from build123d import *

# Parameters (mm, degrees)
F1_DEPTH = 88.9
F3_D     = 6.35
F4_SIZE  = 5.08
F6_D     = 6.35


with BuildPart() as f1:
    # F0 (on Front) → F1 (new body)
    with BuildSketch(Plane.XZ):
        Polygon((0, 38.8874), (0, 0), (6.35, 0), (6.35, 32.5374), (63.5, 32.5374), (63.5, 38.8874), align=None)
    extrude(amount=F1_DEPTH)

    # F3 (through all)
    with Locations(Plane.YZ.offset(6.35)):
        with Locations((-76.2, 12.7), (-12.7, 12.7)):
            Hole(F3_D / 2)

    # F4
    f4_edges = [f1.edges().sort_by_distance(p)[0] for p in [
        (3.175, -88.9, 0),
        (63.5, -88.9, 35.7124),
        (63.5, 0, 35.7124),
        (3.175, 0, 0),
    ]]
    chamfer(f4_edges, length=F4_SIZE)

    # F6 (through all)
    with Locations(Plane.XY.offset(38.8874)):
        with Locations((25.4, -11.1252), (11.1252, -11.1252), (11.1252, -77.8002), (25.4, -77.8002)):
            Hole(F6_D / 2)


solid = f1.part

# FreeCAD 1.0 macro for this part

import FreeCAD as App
import Part
import Sketcher
Q = App.Units.Quantity


def edges_at(feature, points):
    """Names of the edges that pass closest to the given points."""
    edges = feature.Shape.Edges
    near = lambda p: min(range(len(edges)), key=lambda i: edges[i].distToShape(Part.Vertex(*p))[0])
    return sorted({f"Edge{near(p) + 1}" for p in points})


def add_polygon(sketch, points):
    """Adds a closed chain of lines whose ends are joined by coincident constraints."""
    first, n = sketch.GeometryCount, len(points)
    for a, b in zip(points, points[1:] + points[:1]):
        sketch.addGeometry(Part.LineSegment(App.Vector(*a, 0), App.Vector(*b, 0)), False)
    for i in range(n):
        sketch.addConstraint(Sketcher.Constraint("Coincident", first + i, 2, first + (i + 1) % n, 1))

doc = App.newDocument("Part")
body = doc.addObject("PartDesign::Body", "Body")

# Sketch on XZ plane
sketch1 = doc.addObject("Sketcher::SketchObject", "Sketch")
body.addObject(sketch1)
sketch1.AttachmentSupport = (doc.XZ_Plane, [""])
sketch1.MapMode = "FlatFace"
add_polygon(sketch1, [(0, 38.8874), (0, 0), (6.35, 0), (6.35, 32.5374), (63.5, 32.5374), (63.5, 38.8874)])  # lines 0-5
sketch1.addConstraint(Sketcher.Constraint("Vertical", 0))
sketch1.addConstraint(Sketcher.Constraint("Horizontal", 1))
sketch1.addConstraint(Sketcher.Constraint("Vertical", 2))
sketch1.addConstraint(Sketcher.Constraint("Horizontal", 3))
sketch1.addConstraint(Sketcher.Constraint("Vertical", 4))
sketch1.addConstraint(Sketcher.Constraint("Horizontal", 5))
sketch1.addConstraint(Sketcher.Constraint("Coincident", 0, 2, -1, 1))
sketch1.addConstraint(Sketcher.Constraint("Equal", 1, 4))
sketch1.addConstraint(Sketcher.Constraint("DistanceX", 5, 2, 5, 1, Q("2.5 in")))
sketch1.addConstraint(Sketcher.Constraint("DistanceX", 1, 1, 1, 2, Q("0.25 in")))
sketch1.addConstraint(Sketcher.Constraint("DistanceY", 0, 2, 0, 1, Q("1.531 in")))
pad1 = doc.addObject("PartDesign::Pad", "Pad")
body.addObject(pad1)
pad1.Profile = sketch1
pad1.Length = Q("3.5 in")

# Sketch on YZ plane
sketch2 = doc.addObject("Sketcher::SketchObject", "Sketch001")
body.addObject(sketch2)
sketch2.AttachmentSupport = (doc.YZ_Plane, [""])
sketch2.MapMode = "FlatFace"
sketch2.AttachmentOffset = App.Placement(App.Vector(0, 0, 0.25 * 25.4), App.Rotation())
sketch2.addGeometry(Part.Circle(App.Vector(-76.2, 12.7, 0), App.Vector(0, 0, 1), 3.175), False)
sketch2.addGeometry(Part.Circle(App.Vector(-12.7, 12.7, 0), App.Vector(0, 0, 1), 3.175), False)
sketch2.addConstraint(Sketcher.Constraint("Equal", 0, 1))
sketch2.addConstraint(Sketcher.Constraint("Horizontal", 0, 3, 1, 3))
sketch2.addConstraint(Sketcher.Constraint("Diameter", 0, Q("0.25 in")))
sketch2.addConstraint(Sketcher.Constraint("DistanceX", 0, 3, -1, 1, Q("3 in")))
sketch2.addConstraint(Sketcher.Constraint("DistanceY", -1, 1, 0, 3, Q("0.5 in")))
sketch2.addConstraint(Sketcher.Constraint("DistanceX", 1, 3, -1, 1, Q("0.5 in")))
doc.recompute()
hole = doc.addObject("PartDesign::Hole", "Hole")
body.addObject(hole)
hole.Profile = sketch2
hole.ThreadType = "None"
hole.Diameter = Q("0.25 in")
hole.DepthType = "ThroughAll"
doc.recompute()

chamfer = doc.addObject("PartDesign::Chamfer", "Chamfer")
body.addObject(chamfer)
chamfer.Base = (hole, edges_at(hole, [
    (3.175, -88.9, 0),
    (63.5, -88.9, 35.712),
    (63.5, 0, 35.712),
    (3.175, 0, 0),
]))
chamfer.Size = Q("0.2 in")

# Sketch on XY plane
sketch3 = doc.addObject("Sketcher::SketchObject", "Sketch002")
body.addObject(sketch3)
sketch3.AttachmentSupport = (doc.XY_Plane, [""])
sketch3.MapMode = "FlatFace"
sketch3.AttachmentOffset = App.Placement(App.Vector(0, 0, 1.531 * 25.4), App.Rotation())
sketch3.addGeometry(Part.Circle(App.Vector(25.4, -11.1252, 0), App.Vector(0, 0, 1), 3.175), False)
sketch3.addGeometry(Part.Circle(App.Vector(11.1252, -11.1252, 0), App.Vector(0, 0, 1), 3.175), False)
sketch3.addGeometry(Part.Circle(App.Vector(11.1252, -77.8002, 0), App.Vector(0, 0, 1), 3.175), False)
sketch3.addGeometry(Part.Circle(App.Vector(25.4, -77.8002, 0), App.Vector(0, 0, 1), 3.175), False)
sketch3.addConstraint(Sketcher.Constraint("Equal", 0, 1))
sketch3.addConstraint(Sketcher.Constraint("Equal", 1, 2))
sketch3.addConstraint(Sketcher.Constraint("Equal", 2, 3))
sketch3.addConstraint(Sketcher.Constraint("Horizontal", 0, 3, 1, 3))
sketch3.addConstraint(Sketcher.Constraint("Horizontal", 2, 3, 3, 3))
sketch3.addConstraint(Sketcher.Constraint("Vertical", 1, 3, 2, 3))
sketch3.addConstraint(Sketcher.Constraint("Vertical", 0, 3, 3, 3))
sketch3.addConstraint(Sketcher.Constraint("Diameter", 0, Q("0.25 in")))
sketch3.addConstraint(Sketcher.Constraint("DistanceX", -1, 1, 0, 3, Q("1 in")))
sketch3.addConstraint(Sketcher.Constraint("DistanceY", 0, 3, -1, 1, Q("0.438 in")))
sketch3.addConstraint(Sketcher.Constraint("DistanceX", -1, 1, 1, 3, Q("0.438 in")))
sketch3.addConstraint(Sketcher.Constraint("DistanceY", 2, 3, -1, 1, Q("3.063 in")))
doc.recompute()
hole2 = doc.addObject("PartDesign::Hole", "Hole001")
body.addObject(hole2)
hole2.Profile = sketch3
hole2.ThreadType = "None"
hole2.Diameter = Q("0.25 in")
hole2.DepthType = "ThroughAll"

doc.recompute()
